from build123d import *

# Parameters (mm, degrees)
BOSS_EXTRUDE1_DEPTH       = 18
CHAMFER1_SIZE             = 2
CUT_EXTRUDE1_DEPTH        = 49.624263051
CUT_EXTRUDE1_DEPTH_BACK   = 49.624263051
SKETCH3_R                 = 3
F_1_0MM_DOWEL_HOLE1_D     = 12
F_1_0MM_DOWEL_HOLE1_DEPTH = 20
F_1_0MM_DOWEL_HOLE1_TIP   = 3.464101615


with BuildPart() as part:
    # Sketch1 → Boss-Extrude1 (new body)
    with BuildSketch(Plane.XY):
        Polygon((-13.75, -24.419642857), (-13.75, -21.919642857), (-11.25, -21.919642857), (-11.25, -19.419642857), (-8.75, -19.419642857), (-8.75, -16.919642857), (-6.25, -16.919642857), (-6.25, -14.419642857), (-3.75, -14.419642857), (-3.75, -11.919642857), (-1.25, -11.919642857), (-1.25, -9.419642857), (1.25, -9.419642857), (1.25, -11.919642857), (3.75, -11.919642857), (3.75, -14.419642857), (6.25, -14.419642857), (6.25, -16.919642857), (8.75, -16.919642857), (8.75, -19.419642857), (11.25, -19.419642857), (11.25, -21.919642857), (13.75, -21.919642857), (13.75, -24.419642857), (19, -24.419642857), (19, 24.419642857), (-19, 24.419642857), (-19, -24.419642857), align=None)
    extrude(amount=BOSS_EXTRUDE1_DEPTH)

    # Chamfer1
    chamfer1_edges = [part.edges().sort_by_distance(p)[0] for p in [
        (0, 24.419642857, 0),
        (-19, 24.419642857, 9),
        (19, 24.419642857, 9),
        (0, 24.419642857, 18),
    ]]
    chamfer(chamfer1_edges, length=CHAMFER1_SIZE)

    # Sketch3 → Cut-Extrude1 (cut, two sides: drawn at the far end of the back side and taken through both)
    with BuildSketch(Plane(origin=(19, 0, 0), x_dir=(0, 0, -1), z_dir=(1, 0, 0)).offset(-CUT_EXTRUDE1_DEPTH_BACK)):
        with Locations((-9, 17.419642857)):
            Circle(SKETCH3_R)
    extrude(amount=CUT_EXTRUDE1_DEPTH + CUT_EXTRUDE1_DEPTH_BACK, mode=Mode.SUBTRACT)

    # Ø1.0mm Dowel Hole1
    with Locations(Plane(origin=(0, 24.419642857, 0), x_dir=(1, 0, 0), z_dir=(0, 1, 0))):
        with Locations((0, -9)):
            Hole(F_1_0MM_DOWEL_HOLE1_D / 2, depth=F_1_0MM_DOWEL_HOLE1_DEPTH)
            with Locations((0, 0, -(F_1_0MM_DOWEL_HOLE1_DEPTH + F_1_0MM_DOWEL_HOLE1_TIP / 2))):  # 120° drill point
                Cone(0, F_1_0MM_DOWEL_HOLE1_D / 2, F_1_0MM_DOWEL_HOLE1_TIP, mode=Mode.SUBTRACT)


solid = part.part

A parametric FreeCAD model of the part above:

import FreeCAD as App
import Part
import Sketcher
Q = App.Units.Quantity


def edges_at(feature, points):
    """Names of the edges that pass closest to the given points."""
    edges = feature.Shape.Edges
    near = lambda p: min(range(len(edges)), key=lambda i: edges[i].distToShape(Part.Vertex(*p))[0])
    return sorted({f"Edge{near(p) + 1}" for p in points})

doc = App.newDocument("Part")
body = doc.addObject("PartDesign::Body", "Body")

# Sketch on XY plane
sketch1 = doc.addObject("Sketcher::SketchObject", "Sketch")
body.addObject(sketch1)
sketch1.AttachmentSupport = (doc.XY_Plane, [""])
sketch1.MapMode = "FlatFace"
sketch1.addGeometry(Part.LineSegment(App.Vector(-13.75, -24.419643, 0), App.Vector(-13.75, -21.919643, 0)), False)
sketch1.addGeometry(Part.LineSegment(App.Vector(-13.75, -21.919643, 0), App.Vector(-11.25, -21.919643, 0)), False)
sketch1.addGeometry(Part.LineSegment(App.Vector(-11.25, -21.919643, 0), App.Vector(-11.25, -19.419643, 0)), False)
sketch1.addGeometry(Part.LineSegment(App.Vector(-11.25, -19.419643, 0), App.Vector(-8.75, -19.419643, 0)), False)
sketch1.addGeometry(Part.LineSegment(App.Vector(-8.75, -19.419643, 0), App.Vector(-8.75, -16.919643, 0)), False)
sketch1.addGeometry(Part.LineSegment(App.Vector(-8.75, -16.919643, 0), App.Vector(-6.25, -16.919643, 0)), False)
sketch1.addGeometry(Part.LineSegment(App.Vector(-6.25, -16.919643, 0), App.Vector(-6.25, -14.419643, 0)), False)
sketch1.addGeometry(Part.LineSegment(App.Vector(-6.25, -14.419643, 0), App.Vector(-3.75, -14.419643, 0)), False)
sketch1.addGeometry(Part.LineSegment(App.Vector(-3.75, -14.419643, 0), App.Vector(-3.75, -11.919643, 0)), False)
sketch1.addGeometry(Part.LineSegment(App.Vector(-3.75, -11.919643, 0), App.Vector(-1.25, -11.919643, 0)), False)
sketch1.addGeometry(Part.LineSegment(App.Vector(-1.25, -11.919643, 0), App.Vector(-1.25, -9.419643, 0)), False)
sketch1.addGeometry(Part.LineSegment(App.Vector(-1.25, -9.419643, 0), App.Vector(1.25, -9.419643, 0)), False)
sketch1.addGeometry(Part.LineSegment(App.Vector(1.25, -9.419643, 0), App.Vector(1.25, -11.919643, 0)), False)
sketch1.addGeometry(Part.LineSegment(App.Vector(1.25, -11.919643, 0), App.Vector(3.75, -11.919643, 0)), False)
sketch1.addGeometry(Part.LineSegment(App.Vector(3.75, -11.919643, 0), App.Vector(3.75, -14.419643, 0)), False)
sketch1.addGeometry(Part.LineSegment(App.Vector(3.75, -14.419643, 0), App.Vector(6.25, -14.419643, 0)), False)
sketch1.addGeometry(Part.LineSegment(App.Vector(6.25, -14.419643, 0), App.Vector(6.25, -16.919643, 0)), False)
sketch1.addGeometry(Part.LineSegment(App.Vector(6.25, -16.919643, 0), App.Vector(8.75, -16.919643, 0)), False)
sketch1.addGeometry(Part.LineSegment(App.Vector(8.75, -16.919643, 0), App.Vector(8.75, -19.419643, 0)), False)
sketch1.addGeometry(Part.LineSegment(App.Vector(8.75, -19.419643, 0), App.Vector(11.25, -19.419643, 0)), False)
sketch1.addGeometry(Part.LineSegment(App.Vector(11.25, -19.419643, 0), App.Vector(11.25, -21.919643, 0)), False)
sketch1.addGeometry(Part.LineSegment(App.Vector(11.25, -21.919643, 0), App.Vector(13.75, -21.919643, 0)), False)
sketch1.addGeometry(Part.LineSegment(App.Vector(13.75, -21.919643, 0), App.Vector(13.75, -24.419643, 0)), False)
sketch1.addGeometry(Part.LineSegment(App.Vector(13.75, -24.419643, 0), App.Vector(19, -24.419643, 0)), False)
sketch1.addGeometry(Part.LineSegment(App.Vector(19, -24.419643, 0), App.Vector(19, 24.419643, 0)), False)
sketch1.addGeometry(Part.LineSegment(App.Vector(19, 24.419643, 0), App.Vector(-19, 24.419643, 0)), False)
sketch1.addGeometry(Part.LineSegment(App.Vector(-19, 24.419643, 0), App.Vector(-19, -24.419643, 0)), False)
sketch1.addGeometry(Part.LineSegment(App.Vector(-19, -24.419643, 0), App.Vector(-13.75, -24.419643, 0)), False)
sketch1.addConstraint(Sketcher.Constraint("Coincident", 0, 2, 1, 1))
sketch1.addConstraint(Sketcher.Constraint("Coincident", 1, 2, 2, 1))
sketch1.addConstraint(Sketcher.Constraint("Coincident", 2, 2, 3, 1))
sketch1.addConstraint(Sketcher.Constraint("Coincident", 3, 2, 4, 1))
sketch1.addConstraint(Sketcher.Constraint("Coincident", 4, 2, 5, 1))
sketch1.addConstraint(Sketcher.Constraint("Coincident", 5, 2, 6, 1))
sketch1.addConstraint(Sketcher.Constraint("Coincident", 6, 2, 7, 1))
sketch1.addConstraint(Sketcher.Constraint("Coincident", 7, 2, 8, 1))
sketch1.addConstraint(Sketcher.Constraint("Coincident", 8, 2, 9, 1))
sketch1.addConstraint(Sketcher.Constraint("Coincident", 9, 2, 10, 1))
sketch1.addConstraint(Sketcher.Constraint("Coincident", 10, 2, 11, 1))
sketch1.addConstraint(Sketcher.Constraint("Coincident", 11, 2, 12, 1))
sketch1.addConstraint(Sketcher.Constraint("Coincident", 12, 2, 13, 1))
sketch1.addConstraint(Sketcher.Constraint("Coincident", 13, 2, 14, 1))
sketch1.addConstraint(Sketcher.Constraint("Coincident", 14, 2, 15, 1))
sketch1.addConstraint(Sketcher.Constraint("Coincident", 15, 2, 16, 1))
sketch1.addConstraint(Sketcher.Constraint("Coincident", 16, 2, 17, 1))
sketch1.addConstraint(Sketcher.Constraint("Coincident", 17, 2, 18, 1))
sketch1.addConstraint(Sketcher.Constraint("Coincident", 18, 2, 19, 1))
sketch1.addConstraint(Sketcher.Constraint("Coincident", 19, 2, 20, 1))
sketch1.addConstraint(Sketcher.Constraint("Coincident", 20, 2, 21, 1))
sketch1.addConstraint(Sketcher.Constraint("Coincident", 21, 2, 22, 1))
sketch1.addConstraint(Sketcher.Constraint("Coincident", 22, 2, 23, 1))
sketch1.addConstraint(Sketcher.Constraint("Coincident", 23, 2, 24, 1))
sketch1.addConstraint(Sketcher.Constraint("Coincident", 24, 2, 25, 1))
sketch1.addConstraint(Sketcher.Constraint("Coincident", 25, 2, 26, 1))
sketch1.addConstraint(Sketcher.Constraint("Coincident", 26, 2, 27, 1))
sketch1.addConstraint(Sketcher.Constraint("Coincident", 27, 2, 0, 1))
sketch1.addConstraint(Sketcher.Constraint("Vertical", 0))
sketch1.addConstraint(Sketcher.Constraint("Horizontal", 1))
sketch1.addConstraint(Sketcher.Constraint("Vertical", 2))
sketch1.addConstraint(Sketcher.Constraint("Horizontal", 3))
sketch1.addConstraint(Sketcher.Constraint("Vertical", 4))
sketch1.addConstraint(Sketcher.Constraint("Horizontal", 5))
sketch1.addConstraint(Sketcher.Constraint("Vertical", 6))
sketch1.addConstraint(Sketcher.Constraint("Horizontal", 7))
sketch1.addConstraint(Sketcher.Constraint("Vertical", 8))
sketch1.addConstraint(Sketcher.Constraint("Horizontal", 9))
sketch1.addConstraint(Sketcher.Constraint("Vertical", 10))
sketch1.addConstraint(Sketcher.Constraint("Horizontal", 11))
sketch1.addConstraint(Sketcher.Constraint("Vertical", 12))
sketch1.addConstraint(Sketcher.Constraint("Horizontal", 13))
sketch1.addConstraint(Sketcher.Constraint("Vertical", 14))
sketch1.addConstraint(Sketcher.Constraint("Horizontal", 15))
sketch1.addConstraint(Sketcher.Constraint("Vertical", 16))
sketch1.addConstraint(Sketcher.Constraint("Horizontal", 17))
sketch1.addConstraint(Sketcher.Constraint("Vertical", 18))
sketch1.addConstraint(Sketcher.Constraint("Horizontal", 19))
sketch1.addConstraint(Sketcher.Constraint("Vertical", 20))
sketch1.addConstraint(Sketcher.Constraint("Horizontal", 21))
sketch1.addConstraint(Sketcher.Constraint("Vertical", 22))
sketch1.addConstraint(Sketcher.Constraint("Horizontal", 23))
sketch1.addConstraint(Sketcher.Constraint("Vertical", 24))
sketch1.addConstraint(Sketcher.Constraint("Horizontal", 25))
sketch1.addConstraint(Sketcher.Constraint("Vertical", 26))
sketch1.addConstraint(Sketcher.Constraint("Horizontal", 27))
sketch1.addConstraint(Sketcher.Constraint("Symmetric", 23, 2, 25, 2, -1, 1))
sketch1.addConstraint(Sketcher.Constraint("Symmetric", 9, 2, 12, 2, -2))
sketch1.addConstraint(Sketcher.Constraint("Symmetric", 7, 2, 14, 2, -2))
sketch1.addConstraint(Sketcher.Constraint("Symmetric", 5, 2, 16, 2, -2))
sketch1.addConstraint(Sketcher.Constraint("Symmetric", 3, 2, 18, 2, -2))
sketch1.addConstraint(Sketcher.Constraint("Symmetric", 1, 2, 20, 2, -2))
sketch1.addConstraint(Sketcher.Constraint("Symmetric", 22, 2, 27, 2, -2))
sketch1.addConstraint(Sketcher.Constraint("Equal", 1, 3))
sketch1.addConstraint(Sketcher.Constraint("Equal", 3, 5))
sketch1.addConstraint(Sketcher.Constraint("Equal", 5, 7))
sketch1.addConstraint(Sketcher.Constraint("Equal", 7, 9))
sketch1.addConstraint(Sketcher.Constraint("Equal", 9, 11))
sketch1.addConstraint(Sketcher.Constraint("Equal", 21, 0))
sketch1.addConstraint(Sketcher.Constraint("Equal", 0, 2))
sketch1.addConstraint(Sketcher.Constraint("Equal", 2, 4))
sketch1.addConstraint(Sketcher.Constraint("Equal", 4, 6))
sketch1.addConstraint(Sketcher.Constraint("Equal", 6, 8))
sketch1.addConstraint(Sketcher.Constraint("Equal", 8, 10))
sketch1.addConstraint(Sketcher.Constraint("DistanceX", 25, 2, 25, 1, Q("38 mm")))
sketch1.addConstraint(Sketcher.Constraint("DistanceX", 1, 1, 1, 2, Q("2.5 mm")))
sketch1.addConstraint(Sketcher.Constraint("DistanceY", 24, 1, 24, 2, Q("48.839286 mm")))
pad1 = doc.addObject("PartDesign::Pad", "Pad")
body.addObject(pad1)
pad1.Profile = sketch1
pad1.Length = 18
doc.recompute()

chamfer = doc.addObject("PartDesign::Chamfer", "Chamfer")
body.addObject(chamfer)
chamfer.Base = (pad1, edges_at(pad1, [
    (0, 24.42, 0),
    (-19, 24.42, 9),
    (19, 24.42, 9),
    (0, 24.42, 18),
]))
chamfer.Size = 2

# Sketch on YZ plane
sketch2 = doc.addObject("Sketcher::SketchObject", "Sketch001")
body.addObject(sketch2)
sketch2.AttachmentSupport = (doc.YZ_Plane, [""])
sketch2.MapMode = "FlatFace"
sketch2.AttachmentOffset = App.Placement(App.Vector(0, 0, 19), App.Rotation())
sketch2.addGeometry(Part.Circle(App.Vector(17.419643, 9, 0), App.Vector(0, 0, 1), 3), False)
sketch2.addConstraint(Sketcher.Constraint("Diameter", 0, Q("6 mm")))
sketch2.addConstraint(Sketcher.Constraint("DistanceY", -1, 1, 0, 3, Q("9 mm")))
sketch2.addConstraint(Sketcher.Constraint("DistanceX", -1, 1, 0, 3, Q("17.419643 mm")))
pocket1 = doc.addObject("PartDesign::Pocket", "Pocket")
body.addObject(pocket1)
pocket1.Profile = sketch2
pocket1.Type = "ThroughAll"
pocket1.Midplane = True

# Sketch on XZ plane
sketch3 = doc.addObject("Sketcher::SketchObject", "Sketch002")
body.addObject(sketch3)
sketch3.AttachmentSupport = (doc.XZ_Plane, [""])
sketch3.MapMode = "FlatFace"
sketch3.AttachmentOffset = App.Placement(App.Vector(0, 0, -24.419643), App.Rotation())
sketch3.addGeometry(Part.Circle(App.Vector(0, 9, 0), App.Vector(0, 0, 1), 6), False)
sketch3.addConstraint(Sketcher.Constraint("PointOnObject", 0, 3, -2))
sketch3.addConstraint(Sketcher.Constraint("Diameter", 0, Q("12 mm")))
sketch3.addConstraint(Sketcher.Constraint("DistanceY", -1, 1, 0, 3, Q("9 mm")))
doc.recompute()
hole = doc.addObject("PartDesign::Hole", "Hole")
body.addObject(hole)
hole.Profile = sketch3
hole.ThreadType = "None"
hole.Diameter = 12
hole.DepthType = "Dimension"
hole.Depth = 20
hole.DrillPoint = "Angled"
hole.DrillPointAngle = 120
hole.Reversed = True

doc.recompute()
